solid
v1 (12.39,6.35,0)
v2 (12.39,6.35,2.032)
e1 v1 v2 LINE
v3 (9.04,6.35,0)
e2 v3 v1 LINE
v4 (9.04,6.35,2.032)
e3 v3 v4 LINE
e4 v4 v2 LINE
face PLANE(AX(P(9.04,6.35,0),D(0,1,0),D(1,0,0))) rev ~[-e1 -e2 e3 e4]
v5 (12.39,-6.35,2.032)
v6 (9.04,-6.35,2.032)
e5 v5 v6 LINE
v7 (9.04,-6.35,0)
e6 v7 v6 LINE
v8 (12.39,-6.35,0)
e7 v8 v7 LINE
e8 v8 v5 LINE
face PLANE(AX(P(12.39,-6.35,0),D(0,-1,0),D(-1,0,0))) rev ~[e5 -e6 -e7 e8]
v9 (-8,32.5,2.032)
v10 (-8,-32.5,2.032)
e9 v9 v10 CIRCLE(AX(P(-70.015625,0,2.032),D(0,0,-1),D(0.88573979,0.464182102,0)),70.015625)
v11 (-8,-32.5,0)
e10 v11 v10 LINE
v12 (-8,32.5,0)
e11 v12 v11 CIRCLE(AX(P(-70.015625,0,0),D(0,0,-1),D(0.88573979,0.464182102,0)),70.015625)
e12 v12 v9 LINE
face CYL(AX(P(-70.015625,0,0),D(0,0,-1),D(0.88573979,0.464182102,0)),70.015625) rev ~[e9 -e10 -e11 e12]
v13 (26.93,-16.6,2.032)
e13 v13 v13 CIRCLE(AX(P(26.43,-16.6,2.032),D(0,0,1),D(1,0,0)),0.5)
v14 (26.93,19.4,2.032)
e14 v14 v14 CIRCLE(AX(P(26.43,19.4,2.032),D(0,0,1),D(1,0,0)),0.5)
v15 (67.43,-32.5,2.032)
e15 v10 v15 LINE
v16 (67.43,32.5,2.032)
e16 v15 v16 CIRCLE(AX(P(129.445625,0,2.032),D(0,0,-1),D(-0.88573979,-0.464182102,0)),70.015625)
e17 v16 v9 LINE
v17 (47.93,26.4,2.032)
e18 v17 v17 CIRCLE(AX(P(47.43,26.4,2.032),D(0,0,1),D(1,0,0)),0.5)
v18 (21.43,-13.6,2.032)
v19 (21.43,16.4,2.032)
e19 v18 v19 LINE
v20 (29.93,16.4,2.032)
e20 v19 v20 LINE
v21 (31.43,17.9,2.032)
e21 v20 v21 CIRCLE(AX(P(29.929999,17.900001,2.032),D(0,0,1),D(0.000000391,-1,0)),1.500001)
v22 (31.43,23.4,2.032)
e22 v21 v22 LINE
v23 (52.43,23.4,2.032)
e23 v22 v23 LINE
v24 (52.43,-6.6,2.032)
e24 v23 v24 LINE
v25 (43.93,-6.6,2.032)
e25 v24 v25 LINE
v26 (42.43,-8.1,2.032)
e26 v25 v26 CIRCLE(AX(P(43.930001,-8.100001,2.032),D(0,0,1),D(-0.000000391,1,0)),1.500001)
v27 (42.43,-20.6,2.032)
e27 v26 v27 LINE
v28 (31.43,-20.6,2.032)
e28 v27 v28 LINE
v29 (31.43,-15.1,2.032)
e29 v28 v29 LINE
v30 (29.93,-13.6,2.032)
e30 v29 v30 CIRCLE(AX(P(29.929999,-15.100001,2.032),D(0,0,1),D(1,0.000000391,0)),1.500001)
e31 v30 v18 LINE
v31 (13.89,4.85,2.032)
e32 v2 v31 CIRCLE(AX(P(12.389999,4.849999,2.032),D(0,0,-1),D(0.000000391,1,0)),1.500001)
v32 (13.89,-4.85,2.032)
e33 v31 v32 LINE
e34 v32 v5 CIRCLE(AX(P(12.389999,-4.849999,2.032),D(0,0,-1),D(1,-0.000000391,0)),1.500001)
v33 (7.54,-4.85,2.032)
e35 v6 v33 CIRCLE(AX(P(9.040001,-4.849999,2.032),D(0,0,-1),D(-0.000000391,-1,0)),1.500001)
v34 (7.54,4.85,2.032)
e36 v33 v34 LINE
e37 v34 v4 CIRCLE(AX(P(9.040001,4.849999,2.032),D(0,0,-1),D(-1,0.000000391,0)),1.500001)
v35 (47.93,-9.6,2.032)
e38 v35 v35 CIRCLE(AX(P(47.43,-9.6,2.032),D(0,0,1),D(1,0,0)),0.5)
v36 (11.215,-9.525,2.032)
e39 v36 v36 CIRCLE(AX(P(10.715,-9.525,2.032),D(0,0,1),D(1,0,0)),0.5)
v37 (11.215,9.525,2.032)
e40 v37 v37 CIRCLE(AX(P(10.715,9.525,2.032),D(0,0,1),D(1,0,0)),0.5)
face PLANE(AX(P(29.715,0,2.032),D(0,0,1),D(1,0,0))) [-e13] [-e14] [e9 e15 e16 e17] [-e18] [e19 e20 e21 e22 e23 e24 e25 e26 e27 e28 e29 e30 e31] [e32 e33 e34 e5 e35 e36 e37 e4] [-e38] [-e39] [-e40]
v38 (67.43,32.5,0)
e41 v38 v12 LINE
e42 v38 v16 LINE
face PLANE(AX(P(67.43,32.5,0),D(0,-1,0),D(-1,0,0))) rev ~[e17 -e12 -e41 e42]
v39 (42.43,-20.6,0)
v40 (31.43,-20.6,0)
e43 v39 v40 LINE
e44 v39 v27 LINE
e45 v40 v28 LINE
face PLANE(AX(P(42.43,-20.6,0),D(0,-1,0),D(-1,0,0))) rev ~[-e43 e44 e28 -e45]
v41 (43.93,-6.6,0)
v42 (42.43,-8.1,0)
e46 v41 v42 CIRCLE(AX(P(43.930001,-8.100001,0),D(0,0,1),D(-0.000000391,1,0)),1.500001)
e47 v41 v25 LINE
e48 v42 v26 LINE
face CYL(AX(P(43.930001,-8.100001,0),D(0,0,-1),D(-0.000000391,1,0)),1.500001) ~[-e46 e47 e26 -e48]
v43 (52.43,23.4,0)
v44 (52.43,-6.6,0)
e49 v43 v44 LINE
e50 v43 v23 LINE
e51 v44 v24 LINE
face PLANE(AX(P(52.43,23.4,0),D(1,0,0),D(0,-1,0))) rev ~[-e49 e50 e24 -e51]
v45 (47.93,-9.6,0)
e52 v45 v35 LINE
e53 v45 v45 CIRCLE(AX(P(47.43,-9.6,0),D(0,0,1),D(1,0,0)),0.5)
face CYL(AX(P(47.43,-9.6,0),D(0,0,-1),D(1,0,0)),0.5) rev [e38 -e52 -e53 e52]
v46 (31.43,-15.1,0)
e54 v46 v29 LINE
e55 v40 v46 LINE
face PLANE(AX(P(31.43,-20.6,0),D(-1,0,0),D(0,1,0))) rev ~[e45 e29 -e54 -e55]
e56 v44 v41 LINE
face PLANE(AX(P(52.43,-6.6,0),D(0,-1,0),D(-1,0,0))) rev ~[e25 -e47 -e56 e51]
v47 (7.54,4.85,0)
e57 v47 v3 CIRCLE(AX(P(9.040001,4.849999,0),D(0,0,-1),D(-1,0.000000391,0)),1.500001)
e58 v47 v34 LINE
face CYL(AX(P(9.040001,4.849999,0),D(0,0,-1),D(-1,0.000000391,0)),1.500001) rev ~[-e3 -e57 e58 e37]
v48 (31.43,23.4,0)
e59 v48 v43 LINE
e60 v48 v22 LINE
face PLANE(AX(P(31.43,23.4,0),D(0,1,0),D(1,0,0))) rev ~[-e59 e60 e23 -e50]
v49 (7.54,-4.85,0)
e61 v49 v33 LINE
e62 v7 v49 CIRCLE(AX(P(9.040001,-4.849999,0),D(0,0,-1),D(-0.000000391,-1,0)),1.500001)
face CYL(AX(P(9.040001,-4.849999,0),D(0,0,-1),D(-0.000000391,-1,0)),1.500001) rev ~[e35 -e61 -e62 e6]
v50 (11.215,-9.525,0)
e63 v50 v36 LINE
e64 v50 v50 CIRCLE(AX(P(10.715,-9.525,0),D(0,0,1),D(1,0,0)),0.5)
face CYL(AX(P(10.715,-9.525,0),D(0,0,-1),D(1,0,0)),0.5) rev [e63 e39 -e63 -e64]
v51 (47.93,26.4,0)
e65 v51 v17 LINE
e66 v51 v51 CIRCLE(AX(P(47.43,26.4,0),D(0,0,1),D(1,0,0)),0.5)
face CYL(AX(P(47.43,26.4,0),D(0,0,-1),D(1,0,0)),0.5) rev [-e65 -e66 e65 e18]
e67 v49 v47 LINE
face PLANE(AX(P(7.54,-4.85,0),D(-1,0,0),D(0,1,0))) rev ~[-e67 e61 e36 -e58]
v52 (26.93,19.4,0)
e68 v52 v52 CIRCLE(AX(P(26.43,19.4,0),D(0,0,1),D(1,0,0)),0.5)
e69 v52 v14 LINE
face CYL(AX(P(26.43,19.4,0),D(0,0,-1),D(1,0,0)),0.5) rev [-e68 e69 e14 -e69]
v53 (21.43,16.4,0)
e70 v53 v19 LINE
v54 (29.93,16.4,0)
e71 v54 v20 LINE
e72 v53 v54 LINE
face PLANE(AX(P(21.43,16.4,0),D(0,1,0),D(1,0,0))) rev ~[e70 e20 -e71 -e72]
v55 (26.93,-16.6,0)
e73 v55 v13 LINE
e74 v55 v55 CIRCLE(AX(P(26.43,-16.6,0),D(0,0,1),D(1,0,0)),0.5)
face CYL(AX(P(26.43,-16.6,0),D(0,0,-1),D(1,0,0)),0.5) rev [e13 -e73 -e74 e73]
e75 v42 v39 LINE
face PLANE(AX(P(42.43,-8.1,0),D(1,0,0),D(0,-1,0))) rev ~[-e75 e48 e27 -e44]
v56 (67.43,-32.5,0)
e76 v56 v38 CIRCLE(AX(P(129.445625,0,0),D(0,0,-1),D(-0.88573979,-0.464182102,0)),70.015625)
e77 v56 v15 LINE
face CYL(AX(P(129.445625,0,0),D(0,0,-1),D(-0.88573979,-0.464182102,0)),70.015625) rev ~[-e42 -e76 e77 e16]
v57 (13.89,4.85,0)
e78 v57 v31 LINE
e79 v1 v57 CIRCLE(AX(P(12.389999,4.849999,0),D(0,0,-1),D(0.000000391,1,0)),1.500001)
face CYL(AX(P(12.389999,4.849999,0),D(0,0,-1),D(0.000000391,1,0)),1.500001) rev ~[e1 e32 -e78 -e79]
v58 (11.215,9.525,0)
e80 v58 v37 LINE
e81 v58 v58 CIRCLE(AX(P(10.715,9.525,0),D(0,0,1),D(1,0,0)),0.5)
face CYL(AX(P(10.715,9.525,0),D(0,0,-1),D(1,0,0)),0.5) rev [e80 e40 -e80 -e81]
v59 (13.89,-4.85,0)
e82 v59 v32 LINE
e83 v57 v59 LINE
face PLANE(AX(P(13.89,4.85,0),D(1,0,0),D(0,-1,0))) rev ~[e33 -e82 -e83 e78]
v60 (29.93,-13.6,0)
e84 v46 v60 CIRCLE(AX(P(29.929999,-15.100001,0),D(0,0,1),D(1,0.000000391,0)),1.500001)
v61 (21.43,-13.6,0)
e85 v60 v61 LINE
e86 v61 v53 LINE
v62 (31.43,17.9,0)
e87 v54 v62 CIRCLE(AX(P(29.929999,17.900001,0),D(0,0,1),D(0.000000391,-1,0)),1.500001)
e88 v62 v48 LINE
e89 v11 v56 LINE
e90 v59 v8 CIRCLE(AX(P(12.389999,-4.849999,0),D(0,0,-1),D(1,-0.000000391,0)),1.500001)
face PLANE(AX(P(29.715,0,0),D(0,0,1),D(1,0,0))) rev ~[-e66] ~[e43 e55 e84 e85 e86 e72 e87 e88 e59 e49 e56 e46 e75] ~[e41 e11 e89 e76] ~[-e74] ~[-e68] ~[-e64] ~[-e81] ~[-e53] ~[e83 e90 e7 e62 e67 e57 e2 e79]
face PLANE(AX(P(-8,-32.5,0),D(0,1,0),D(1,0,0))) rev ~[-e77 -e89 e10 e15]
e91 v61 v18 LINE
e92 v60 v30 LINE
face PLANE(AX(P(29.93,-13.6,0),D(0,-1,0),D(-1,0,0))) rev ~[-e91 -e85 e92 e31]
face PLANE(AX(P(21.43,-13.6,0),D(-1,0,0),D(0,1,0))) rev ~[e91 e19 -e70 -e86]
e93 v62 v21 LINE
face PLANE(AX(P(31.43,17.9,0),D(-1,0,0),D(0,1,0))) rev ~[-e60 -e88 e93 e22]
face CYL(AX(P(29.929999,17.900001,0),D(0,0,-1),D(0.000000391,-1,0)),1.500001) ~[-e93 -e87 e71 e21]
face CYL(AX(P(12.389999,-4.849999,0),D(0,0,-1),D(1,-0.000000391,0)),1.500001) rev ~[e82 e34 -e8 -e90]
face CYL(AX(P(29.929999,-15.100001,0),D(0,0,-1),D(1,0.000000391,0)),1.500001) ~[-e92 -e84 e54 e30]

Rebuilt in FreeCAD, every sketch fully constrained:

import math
import FreeCAD as App
import Part
import Sketcher

V = App.Vector

doc = App.newDocument("Part")
body = doc.addObject("PartDesign::Body", "Body")

sketch1 = body.newObject("Sketcher::SketchObject", "Sketch")
sketch1.AttachmentSupport = (doc.getObject("XY_Plane"), [""])
sketch1.MapMode = "FlatFace"
sketch1.addGeometry(Part.ArcOfCircle(Part.Circle(V(-70, 0, 0), V(0, 0, 1), 70), math.radians(-28), math.radians(28)), False)
sketch1.addGeometry(Part.LineSegment(V(-8, -32.5, 0), V(67.4, -32.5, 0)), False)
sketch1.addGeometry(Part.ArcOfCircle(Part.Circle(V(129.4, 0, 0), V(0, 0, 1), 70), math.radians(152), math.radians(208)), False)
sketch1.addGeometry(Part.LineSegment(V(67.4, 32.5, 0), V(-8, 32.5, 0)), False)
sketch1.addGeometry(Part.Circle(V(10.7, -9.5, 0), V(0, 0, 1), 0.5), False)
sketch1.addGeometry(Part.Circle(V(26.4, -16.6, 0), V(0, 0, 1), 0.5), False)
sketch1.addGeometry(Part.ArcOfCircle(Part.Circle(V(12.4, 4.8, 0), V(0, 0, 1), 1.5), math.radians(0), math.radians(90)), False)
sketch1.addGeometry(Part.LineSegment(V(13.9, 4.8, 0), V(13.9, -4.8, 0)), False)
sketch1.addGeometry(Part.ArcOfCircle(Part.Circle(V(12.4, -4.8, 0), V(0, 0, 1), 1.5), math.radians(-90), math.radians(0)), False)
sketch1.addGeometry(Part.LineSegment(V(12.4, -6.3, 0), V(9, -6.3, 0)), False)
sketch1.addGeometry(Part.ArcOfCircle(Part.Circle(V(9, -4.8, 0), V(0, 0, 1), 1.5), math.radians(-180), math.radians(-90)), False)
sketch1.addGeometry(Part.LineSegment(V(7.5, -4.8, 0), V(7.5, 4.8, 0)), False)
sketch1.addGeometry(Part.ArcOfCircle(Part.Circle(V(9, 4.8, 0), V(0, 0, 1), 1.5), math.radians(90), math.radians(180)), False)
sketch1.addGeometry(Part.LineSegment(V(9, 6.3, 0), V(12.4, 6.3, 0)), False)
sketch1.addGeometry(Part.Circle(V(47.4, -9.6, 0), V(0, 0, 1), 0.5), False)
sketch1.addGeometry(Part.LineSegment(V(31.4, 23.4, 0), V(52.4, 23.4, 0)), False)
sketch1.addGeometry(Part.LineSegment(V(52.4, 23.4, 0), V(52.4, -6.6, 0)), False)
sketch1.addGeometry(Part.LineSegment(V(52.4, -6.6, 0), V(43.9, -6.6, 0)), False)
sketch1.addGeometry(Part.ArcOfCircle(Part.Circle(V(43.9, -8.1, 0), V(0, 0, 1), 1.5), math.radians(90), math.radians(180)), False)
sketch1.addGeometry(Part.LineSegment(V(42.4, -8.1, 0), V(42.4, -20.6, 0)), False)
sketch1.addGeometry(Part.LineSegment(V(42.4, -20.6, 0), V(31.4, -20.6, 0)), False)
sketch1.addGeometry(Part.LineSegment(V(31.4, -20.6, 0), V(31.4, -15.1, 0)), False)
sketch1.addGeometry(Part.ArcOfCircle(Part.Circle(V(29.9, -15.1, 0), V(0, 0, 1), 1.5), math.radians(0), math.radians(90)), False)
sketch1.addGeometry(Part.LineSegment(V(29.9, -13.6, 0), V(21.4, -13.6, 0)), False)
sketch1.addGeometry(Part.LineSegment(V(21.4, -13.6, 0), V(21.4, 16.4, 0)), False)
sketch1.addGeometry(Part.LineSegment(V(21.4, 16.4, 0), V(29.9, 16.4, 0)), False)
sketch1.addGeometry(Part.ArcOfCircle(Part.Circle(V(29.9, 17.9, 0), V(0, 0, 1), 1.5), math.radians(-90), math.radians(0)), False)
sketch1.addGeometry(Part.LineSegment(V(31.4, 17.9, 0), V(31.4, 23.4, 0)), False)
sketch1.addGeometry(Part.Circle(V(10.7, 9.5, 0), V(0, 0, 1), 0.5), False)
sketch1.addGeometry(Part.Circle(V(26.4, 19.4, 0), V(0, 0, 1), 0.5), False)
sketch1.addGeometry(Part.Circle(V(47.4, 26.4, 0), V(0, 0, 1), 0.5), False)
sketch1.addConstraint(Sketcher.Constraint("Coincident", 0, 1, 1, 1))
sketch1.addConstraint(Sketcher.Constraint("Coincident", 1, 2, 2, 2))
sketch1.addConstraint(Sketcher.Constraint("Coincident", 2, 1, 3, 1))
sketch1.addConstraint(Sketcher.Constraint("Coincident", 3, 2, 0, 2))
sketch1.addConstraint(Sketcher.Constraint("Tangent", 6, 1, 7, 1))
sketch1.addConstraint(Sketcher.Constraint("Tangent", 7, 2, 8, 2))
sketch1.addConstraint(Sketcher.Constraint("Tangent", 8, 1, 9, 1))
sketch1.addConstraint(Sketcher.Constraint("Tangent", 9, 2, 10, 2))
sketch1.addConstraint(Sketcher.Constraint("Tangent", 10, 1, 11, 1))
sketch1.addConstraint(Sketcher.Constraint("Tangent", 11, 2, 12, 2))
sketch1.addConstraint(Sketcher.Constraint("Tangent", 12, 1, 13, 1))
sketch1.addConstraint(Sketcher.Constraint("Tangent", 13, 2, 6, 2))
sketch1.addConstraint(Sketcher.Constraint("Coincident", 15, 2, 16, 1))
sketch1.addConstraint(Sketcher.Constraint("Coincident", 16, 2, 17, 1))
sketch1.addConstraint(Sketcher.Constraint("Tangent", 17, 2, 18, 1))
sketch1.addConstraint(Sketcher.Constraint("Tangent", 18, 2, 19, 1))
sketch1.addConstraint(Sketcher.Constraint("Coincident", 19, 2, 20, 1))
sketch1.addConstraint(Sketcher.Constraint("Coincident", 20, 2, 21, 1))
sketch1.addConstraint(Sketcher.Constraint("Tangent", 21, 2, 22, 1))
sketch1.addConstraint(Sketcher.Constraint("Tangent", 22, 2, 23, 1))
sketch1.addConstraint(Sketcher.Constraint("Coincident", 23, 2, 24, 1))
sketch1.addConstraint(Sketcher.Constraint("Coincident", 24, 2, 25, 1))
sketch1.addConstraint(Sketcher.Constraint("Tangent", 25, 2, 26, 1))
sketch1.addConstraint(Sketcher.Constraint("Tangent", 26, 2, 27, 1))
sketch1.addConstraint(Sketcher.Constraint("Coincident", 27, 2, 15, 1))
sketch1.addConstraint(Sketcher.Constraint("Horizontal", 1))
sketch1.addConstraint(Sketcher.Constraint("Horizontal", 3))
sketch1.addConstraint(Sketcher.Constraint("Vertical", 7))
sketch1.addConstraint(Sketcher.Constraint("Horizontal", 9))
sketch1.addConstraint(Sketcher.Constraint("Vertical", 11))
sketch1.addConstraint(Sketcher.Constraint("Horizontal", 13))
sketch1.addConstraint(Sketcher.Constraint("Horizontal", 15))
sketch1.addConstraint(Sketcher.Constraint("Vertical", 16))
sketch1.addConstraint(Sketcher.Constraint("Horizontal", 17))
sketch1.addConstraint(Sketcher.Constraint("Vertical", 19))
sketch1.addConstraint(Sketcher.Constraint("Horizontal", 20))
sketch1.addConstraint(Sketcher.Constraint("Vertical", 21))
sketch1.addConstraint(Sketcher.Constraint("Horizontal", 23))
sketch1.addConstraint(Sketcher.Constraint("Vertical", 24))
sketch1.addConstraint(Sketcher.Constraint("Horizontal", 25))
sketch1.addConstraint(Sketcher.Constraint("Vertical", 27))
sketch1.addConstraint(Sketcher.Constraint("Equal", 0, 2))
sketch1.addConstraint(Sketcher.Constraint("Equal", 4, 5))
sketch1.addConstraint(Sketcher.Constraint("Equal", 6, 8))
sketch1.addConstraint(Sketcher.Constraint("Equal", 8, 10))
sketch1.addConstraint(Sketcher.Constraint("Equal", 10, 12))
sketch1.addConstraint(Sketcher.Constraint("Equal", 5, 14))
sketch1.addConstraint(Sketcher.Constraint("Equal", 12, 18))
sketch1.addConstraint(Sketcher.Constraint("Equal", 18, 22))
sketch1.addConstraint(Sketcher.Constraint("Equal", 22, 26))
sketch1.addConstraint(Sketcher.Constraint("Equal", 14, 28))
sketch1.addConstraint(Sketcher.Constraint("Equal", 28, 29))
sketch1.addConstraint(Sketcher.Constraint("Equal", 29, 30))
sketch1.addConstraint(Sketcher.Constraint("Symmetric", 4, 3, 28, 3, -1))
sketch1.addConstraint(Sketcher.Constraint("Symmetric", 1, 2, 2, 1, -1))
sketch1.addConstraint(Sketcher.Constraint("PointOnObject", 0, 3, -1))
sketch1.addConstraint(Sketcher.Constraint("Vertical", 22, 3, 26, 3))
sketch1.addConstraint(Sketcher.Constraint("Vertical", 5, 3, 29, 3))
sketch1.addConstraint(Sketcher.Constraint("Vertical", 14, 3, 30, 3))
sketch1.addConstraint(Sketcher.Constraint("Equal", 17, 23))
sketch1.addConstraint(Sketcher.Constraint("Equal", 16, 24))
sketch1.addConstraint(Sketcher.Constraint("Equal", 21, 27))
sketch1.addConstraint(Sketcher.Constraint("Diameter", 4, 1.0))
sketch1.addConstraint(Sketcher.Constraint("Radius", 6, 1.500001))
sketch1.addConstraint(Sketcher.Constraint("DistanceX", 15, 1, 15, 2, 21.0))
sketch1.addConstraint(Sketcher.Constraint("DistanceX", 20, 2, 20, 1, 11.0))
sketch1.addConstraint(Sketcher.Constraint("DistanceY", 16, 2, 16, 1, 30.0))
sketch1.addConstraint(Sketcher.Constraint("DistanceY", 7, 2, 7, 1, 9.7))
sketch1.addConstraint(Sketcher.Constraint("DistanceY", 19, 2, 19, 1, 12.5))
sketch1.addConstraint(Sketcher.Constraint("DistanceX", 0, 1, -1, 1, 8.0))
sketch1.addConstraint(Sketcher.Constraint("DistanceX", 5, 3, 14, 3, 21.0))
sketch1.addConstraint(Sketcher.Constraint("DistanceY", 5, 3, 14, 3, 7.0))
sketch1.addConstraint(Sketcher.Constraint("DistanceY", 29, 3, 30, 3, 7.0))
sketch1.addConstraint(Sketcher.Constraint("DistanceY", 14, 3, 30, 3, 36.0))
sketch1.addConstraint(Sketcher.Constraint("DistanceX", 14, 3, 1, 2, 20.0))
sketch1.addConstraint(Sketcher.Constraint("DistanceX", 30, 3, 15, 2, 5.0))
sketch1.addConstraint(Sketcher.Constraint("DistanceY", 15, 2, 30, 3, 3.0))
sketch1.addConstraint(Sketcher.Constraint("DistanceX", 1, 1, 1, 2, 75.43))
sketch1.addConstraint(Sketcher.Constraint("DistanceX", 9, 2, 9, 1, 3.35))
sketch1.addConstraint(Sketcher.Constraint("DistanceY", 5, 3, -1, 1, 16.6))
sketch1.addConstraint(Sketcher.Constraint("DistanceY", 0, 1, -1, 1, 32.5))
sketch1.addConstraint(Sketcher.Constraint("DistanceX", -1, 1, 6, 3, 12.389999))
sketch1.addConstraint(Sketcher.Constraint("DistanceY", -1, 1, 6, 3, 4.849999))
sketch1.addConstraint(Sketcher.Constraint("DistanceY", 4, 3, 28, 3, 19.05))
sketch1.addConstraint(Sketcher.Constraint("DistanceX", -1, 1, 4, 3, 10.715))
sketch1.addConstraint(Sketcher.Constraint("Radius", 0, 70.015625))
pad1 = body.newObject("PartDesign::Pad", "Pad")
pad1.Profile = sketch1
pad1.Length = 2.032

doc.recompute()
